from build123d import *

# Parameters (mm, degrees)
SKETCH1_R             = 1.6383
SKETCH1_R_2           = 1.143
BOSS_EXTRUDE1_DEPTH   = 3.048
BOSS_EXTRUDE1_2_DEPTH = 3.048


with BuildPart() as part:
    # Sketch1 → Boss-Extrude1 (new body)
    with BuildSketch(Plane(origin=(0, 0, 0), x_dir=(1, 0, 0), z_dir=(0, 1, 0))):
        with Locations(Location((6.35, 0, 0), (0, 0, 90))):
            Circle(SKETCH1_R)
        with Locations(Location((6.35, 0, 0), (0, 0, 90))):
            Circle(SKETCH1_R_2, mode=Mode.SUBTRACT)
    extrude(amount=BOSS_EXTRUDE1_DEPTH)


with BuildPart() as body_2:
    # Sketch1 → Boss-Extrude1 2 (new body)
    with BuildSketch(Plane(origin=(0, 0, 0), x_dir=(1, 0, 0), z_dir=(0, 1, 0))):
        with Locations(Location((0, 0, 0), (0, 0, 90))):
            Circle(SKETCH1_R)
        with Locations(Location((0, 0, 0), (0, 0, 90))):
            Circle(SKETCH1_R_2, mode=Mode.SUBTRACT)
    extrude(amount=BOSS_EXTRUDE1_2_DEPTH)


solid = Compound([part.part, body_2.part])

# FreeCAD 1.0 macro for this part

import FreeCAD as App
import Part
import Sketcher

V = App.Vector
Q = App.Units.Quantity

doc = App.newDocument("Part")
body = doc.addObject("PartDesign::Body", "Body")

# Sketch on XZ plane
sketch1 = doc.addObject("Sketcher::SketchObject", "Sketch")
body.addObject(sketch1)
sketch1.AttachmentSupport = (doc.XZ_Plane, [""])
sketch1.MapMode = "FlatFace"
sketch1.addGeometry([
    Part.Circle(V(6.3, 0, 0), V(0, 0, 1), 1.6),
    Part.Circle(V(6.3, 0, 0), V(0, 0, 1), 1.1),
], False)
sketch1.addConstraint([
    Sketcher.Constraint("Coincident", 1, 3, 0, 3),
    Sketcher.Constraint("PointOnObject", 0, 3, -1),
    Sketcher.Constraint("Diameter", 1, Q("0.09 in")),
    Sketcher.Constraint("Diameter", 0, Q("0.129 in")),
    Sketcher.Constraint("DistanceX", -1, 1, 0, 3, Q("0.25 in")),
])
pad1 = doc.addObject("PartDesign::Pad", "Pad")
body.addObject(pad1)
pad1.Profile = sketch1
pad1.Length = Q("0.12 in")
pad1.Reversed = True
body2 = doc.addObject("PartDesign::Body", "Body001")

# Sketch on XZ plane
sketch2 = doc.addObject("Sketcher::SketchObject", "Sketch001")
body2.addObject(sketch2)
sketch2.AttachmentSupport = (doc.getObject("XZ_Plane001"), [""])
sketch2.MapMode = "FlatFace"
sketch2.addGeometry([
    Part.Circle(V(0, 0, 0), V(0, 0, 1), 1.6),
    Part.Circle(V(0, 0, 0), V(0, 0, 1), 1.1),
], False)
sketch2.addConstraint([
    Sketcher.Constraint("Coincident", 0, 3, -1, 1),
    Sketcher.Constraint("Coincident", 1, 3, -1, 1),
    Sketcher.Constraint("Diameter", 1, Q("0.09 in")),
    Sketcher.Constraint("Diameter", 0, Q("0.129 in")),
])
pad2 = doc.addObject("PartDesign::Pad", "Pad001")
body2.addObject(pad2)
pad2.Profile = sketch2
pad2.Length = Q("0.12 in")
pad2.Reversed = True

doc.recompute()
